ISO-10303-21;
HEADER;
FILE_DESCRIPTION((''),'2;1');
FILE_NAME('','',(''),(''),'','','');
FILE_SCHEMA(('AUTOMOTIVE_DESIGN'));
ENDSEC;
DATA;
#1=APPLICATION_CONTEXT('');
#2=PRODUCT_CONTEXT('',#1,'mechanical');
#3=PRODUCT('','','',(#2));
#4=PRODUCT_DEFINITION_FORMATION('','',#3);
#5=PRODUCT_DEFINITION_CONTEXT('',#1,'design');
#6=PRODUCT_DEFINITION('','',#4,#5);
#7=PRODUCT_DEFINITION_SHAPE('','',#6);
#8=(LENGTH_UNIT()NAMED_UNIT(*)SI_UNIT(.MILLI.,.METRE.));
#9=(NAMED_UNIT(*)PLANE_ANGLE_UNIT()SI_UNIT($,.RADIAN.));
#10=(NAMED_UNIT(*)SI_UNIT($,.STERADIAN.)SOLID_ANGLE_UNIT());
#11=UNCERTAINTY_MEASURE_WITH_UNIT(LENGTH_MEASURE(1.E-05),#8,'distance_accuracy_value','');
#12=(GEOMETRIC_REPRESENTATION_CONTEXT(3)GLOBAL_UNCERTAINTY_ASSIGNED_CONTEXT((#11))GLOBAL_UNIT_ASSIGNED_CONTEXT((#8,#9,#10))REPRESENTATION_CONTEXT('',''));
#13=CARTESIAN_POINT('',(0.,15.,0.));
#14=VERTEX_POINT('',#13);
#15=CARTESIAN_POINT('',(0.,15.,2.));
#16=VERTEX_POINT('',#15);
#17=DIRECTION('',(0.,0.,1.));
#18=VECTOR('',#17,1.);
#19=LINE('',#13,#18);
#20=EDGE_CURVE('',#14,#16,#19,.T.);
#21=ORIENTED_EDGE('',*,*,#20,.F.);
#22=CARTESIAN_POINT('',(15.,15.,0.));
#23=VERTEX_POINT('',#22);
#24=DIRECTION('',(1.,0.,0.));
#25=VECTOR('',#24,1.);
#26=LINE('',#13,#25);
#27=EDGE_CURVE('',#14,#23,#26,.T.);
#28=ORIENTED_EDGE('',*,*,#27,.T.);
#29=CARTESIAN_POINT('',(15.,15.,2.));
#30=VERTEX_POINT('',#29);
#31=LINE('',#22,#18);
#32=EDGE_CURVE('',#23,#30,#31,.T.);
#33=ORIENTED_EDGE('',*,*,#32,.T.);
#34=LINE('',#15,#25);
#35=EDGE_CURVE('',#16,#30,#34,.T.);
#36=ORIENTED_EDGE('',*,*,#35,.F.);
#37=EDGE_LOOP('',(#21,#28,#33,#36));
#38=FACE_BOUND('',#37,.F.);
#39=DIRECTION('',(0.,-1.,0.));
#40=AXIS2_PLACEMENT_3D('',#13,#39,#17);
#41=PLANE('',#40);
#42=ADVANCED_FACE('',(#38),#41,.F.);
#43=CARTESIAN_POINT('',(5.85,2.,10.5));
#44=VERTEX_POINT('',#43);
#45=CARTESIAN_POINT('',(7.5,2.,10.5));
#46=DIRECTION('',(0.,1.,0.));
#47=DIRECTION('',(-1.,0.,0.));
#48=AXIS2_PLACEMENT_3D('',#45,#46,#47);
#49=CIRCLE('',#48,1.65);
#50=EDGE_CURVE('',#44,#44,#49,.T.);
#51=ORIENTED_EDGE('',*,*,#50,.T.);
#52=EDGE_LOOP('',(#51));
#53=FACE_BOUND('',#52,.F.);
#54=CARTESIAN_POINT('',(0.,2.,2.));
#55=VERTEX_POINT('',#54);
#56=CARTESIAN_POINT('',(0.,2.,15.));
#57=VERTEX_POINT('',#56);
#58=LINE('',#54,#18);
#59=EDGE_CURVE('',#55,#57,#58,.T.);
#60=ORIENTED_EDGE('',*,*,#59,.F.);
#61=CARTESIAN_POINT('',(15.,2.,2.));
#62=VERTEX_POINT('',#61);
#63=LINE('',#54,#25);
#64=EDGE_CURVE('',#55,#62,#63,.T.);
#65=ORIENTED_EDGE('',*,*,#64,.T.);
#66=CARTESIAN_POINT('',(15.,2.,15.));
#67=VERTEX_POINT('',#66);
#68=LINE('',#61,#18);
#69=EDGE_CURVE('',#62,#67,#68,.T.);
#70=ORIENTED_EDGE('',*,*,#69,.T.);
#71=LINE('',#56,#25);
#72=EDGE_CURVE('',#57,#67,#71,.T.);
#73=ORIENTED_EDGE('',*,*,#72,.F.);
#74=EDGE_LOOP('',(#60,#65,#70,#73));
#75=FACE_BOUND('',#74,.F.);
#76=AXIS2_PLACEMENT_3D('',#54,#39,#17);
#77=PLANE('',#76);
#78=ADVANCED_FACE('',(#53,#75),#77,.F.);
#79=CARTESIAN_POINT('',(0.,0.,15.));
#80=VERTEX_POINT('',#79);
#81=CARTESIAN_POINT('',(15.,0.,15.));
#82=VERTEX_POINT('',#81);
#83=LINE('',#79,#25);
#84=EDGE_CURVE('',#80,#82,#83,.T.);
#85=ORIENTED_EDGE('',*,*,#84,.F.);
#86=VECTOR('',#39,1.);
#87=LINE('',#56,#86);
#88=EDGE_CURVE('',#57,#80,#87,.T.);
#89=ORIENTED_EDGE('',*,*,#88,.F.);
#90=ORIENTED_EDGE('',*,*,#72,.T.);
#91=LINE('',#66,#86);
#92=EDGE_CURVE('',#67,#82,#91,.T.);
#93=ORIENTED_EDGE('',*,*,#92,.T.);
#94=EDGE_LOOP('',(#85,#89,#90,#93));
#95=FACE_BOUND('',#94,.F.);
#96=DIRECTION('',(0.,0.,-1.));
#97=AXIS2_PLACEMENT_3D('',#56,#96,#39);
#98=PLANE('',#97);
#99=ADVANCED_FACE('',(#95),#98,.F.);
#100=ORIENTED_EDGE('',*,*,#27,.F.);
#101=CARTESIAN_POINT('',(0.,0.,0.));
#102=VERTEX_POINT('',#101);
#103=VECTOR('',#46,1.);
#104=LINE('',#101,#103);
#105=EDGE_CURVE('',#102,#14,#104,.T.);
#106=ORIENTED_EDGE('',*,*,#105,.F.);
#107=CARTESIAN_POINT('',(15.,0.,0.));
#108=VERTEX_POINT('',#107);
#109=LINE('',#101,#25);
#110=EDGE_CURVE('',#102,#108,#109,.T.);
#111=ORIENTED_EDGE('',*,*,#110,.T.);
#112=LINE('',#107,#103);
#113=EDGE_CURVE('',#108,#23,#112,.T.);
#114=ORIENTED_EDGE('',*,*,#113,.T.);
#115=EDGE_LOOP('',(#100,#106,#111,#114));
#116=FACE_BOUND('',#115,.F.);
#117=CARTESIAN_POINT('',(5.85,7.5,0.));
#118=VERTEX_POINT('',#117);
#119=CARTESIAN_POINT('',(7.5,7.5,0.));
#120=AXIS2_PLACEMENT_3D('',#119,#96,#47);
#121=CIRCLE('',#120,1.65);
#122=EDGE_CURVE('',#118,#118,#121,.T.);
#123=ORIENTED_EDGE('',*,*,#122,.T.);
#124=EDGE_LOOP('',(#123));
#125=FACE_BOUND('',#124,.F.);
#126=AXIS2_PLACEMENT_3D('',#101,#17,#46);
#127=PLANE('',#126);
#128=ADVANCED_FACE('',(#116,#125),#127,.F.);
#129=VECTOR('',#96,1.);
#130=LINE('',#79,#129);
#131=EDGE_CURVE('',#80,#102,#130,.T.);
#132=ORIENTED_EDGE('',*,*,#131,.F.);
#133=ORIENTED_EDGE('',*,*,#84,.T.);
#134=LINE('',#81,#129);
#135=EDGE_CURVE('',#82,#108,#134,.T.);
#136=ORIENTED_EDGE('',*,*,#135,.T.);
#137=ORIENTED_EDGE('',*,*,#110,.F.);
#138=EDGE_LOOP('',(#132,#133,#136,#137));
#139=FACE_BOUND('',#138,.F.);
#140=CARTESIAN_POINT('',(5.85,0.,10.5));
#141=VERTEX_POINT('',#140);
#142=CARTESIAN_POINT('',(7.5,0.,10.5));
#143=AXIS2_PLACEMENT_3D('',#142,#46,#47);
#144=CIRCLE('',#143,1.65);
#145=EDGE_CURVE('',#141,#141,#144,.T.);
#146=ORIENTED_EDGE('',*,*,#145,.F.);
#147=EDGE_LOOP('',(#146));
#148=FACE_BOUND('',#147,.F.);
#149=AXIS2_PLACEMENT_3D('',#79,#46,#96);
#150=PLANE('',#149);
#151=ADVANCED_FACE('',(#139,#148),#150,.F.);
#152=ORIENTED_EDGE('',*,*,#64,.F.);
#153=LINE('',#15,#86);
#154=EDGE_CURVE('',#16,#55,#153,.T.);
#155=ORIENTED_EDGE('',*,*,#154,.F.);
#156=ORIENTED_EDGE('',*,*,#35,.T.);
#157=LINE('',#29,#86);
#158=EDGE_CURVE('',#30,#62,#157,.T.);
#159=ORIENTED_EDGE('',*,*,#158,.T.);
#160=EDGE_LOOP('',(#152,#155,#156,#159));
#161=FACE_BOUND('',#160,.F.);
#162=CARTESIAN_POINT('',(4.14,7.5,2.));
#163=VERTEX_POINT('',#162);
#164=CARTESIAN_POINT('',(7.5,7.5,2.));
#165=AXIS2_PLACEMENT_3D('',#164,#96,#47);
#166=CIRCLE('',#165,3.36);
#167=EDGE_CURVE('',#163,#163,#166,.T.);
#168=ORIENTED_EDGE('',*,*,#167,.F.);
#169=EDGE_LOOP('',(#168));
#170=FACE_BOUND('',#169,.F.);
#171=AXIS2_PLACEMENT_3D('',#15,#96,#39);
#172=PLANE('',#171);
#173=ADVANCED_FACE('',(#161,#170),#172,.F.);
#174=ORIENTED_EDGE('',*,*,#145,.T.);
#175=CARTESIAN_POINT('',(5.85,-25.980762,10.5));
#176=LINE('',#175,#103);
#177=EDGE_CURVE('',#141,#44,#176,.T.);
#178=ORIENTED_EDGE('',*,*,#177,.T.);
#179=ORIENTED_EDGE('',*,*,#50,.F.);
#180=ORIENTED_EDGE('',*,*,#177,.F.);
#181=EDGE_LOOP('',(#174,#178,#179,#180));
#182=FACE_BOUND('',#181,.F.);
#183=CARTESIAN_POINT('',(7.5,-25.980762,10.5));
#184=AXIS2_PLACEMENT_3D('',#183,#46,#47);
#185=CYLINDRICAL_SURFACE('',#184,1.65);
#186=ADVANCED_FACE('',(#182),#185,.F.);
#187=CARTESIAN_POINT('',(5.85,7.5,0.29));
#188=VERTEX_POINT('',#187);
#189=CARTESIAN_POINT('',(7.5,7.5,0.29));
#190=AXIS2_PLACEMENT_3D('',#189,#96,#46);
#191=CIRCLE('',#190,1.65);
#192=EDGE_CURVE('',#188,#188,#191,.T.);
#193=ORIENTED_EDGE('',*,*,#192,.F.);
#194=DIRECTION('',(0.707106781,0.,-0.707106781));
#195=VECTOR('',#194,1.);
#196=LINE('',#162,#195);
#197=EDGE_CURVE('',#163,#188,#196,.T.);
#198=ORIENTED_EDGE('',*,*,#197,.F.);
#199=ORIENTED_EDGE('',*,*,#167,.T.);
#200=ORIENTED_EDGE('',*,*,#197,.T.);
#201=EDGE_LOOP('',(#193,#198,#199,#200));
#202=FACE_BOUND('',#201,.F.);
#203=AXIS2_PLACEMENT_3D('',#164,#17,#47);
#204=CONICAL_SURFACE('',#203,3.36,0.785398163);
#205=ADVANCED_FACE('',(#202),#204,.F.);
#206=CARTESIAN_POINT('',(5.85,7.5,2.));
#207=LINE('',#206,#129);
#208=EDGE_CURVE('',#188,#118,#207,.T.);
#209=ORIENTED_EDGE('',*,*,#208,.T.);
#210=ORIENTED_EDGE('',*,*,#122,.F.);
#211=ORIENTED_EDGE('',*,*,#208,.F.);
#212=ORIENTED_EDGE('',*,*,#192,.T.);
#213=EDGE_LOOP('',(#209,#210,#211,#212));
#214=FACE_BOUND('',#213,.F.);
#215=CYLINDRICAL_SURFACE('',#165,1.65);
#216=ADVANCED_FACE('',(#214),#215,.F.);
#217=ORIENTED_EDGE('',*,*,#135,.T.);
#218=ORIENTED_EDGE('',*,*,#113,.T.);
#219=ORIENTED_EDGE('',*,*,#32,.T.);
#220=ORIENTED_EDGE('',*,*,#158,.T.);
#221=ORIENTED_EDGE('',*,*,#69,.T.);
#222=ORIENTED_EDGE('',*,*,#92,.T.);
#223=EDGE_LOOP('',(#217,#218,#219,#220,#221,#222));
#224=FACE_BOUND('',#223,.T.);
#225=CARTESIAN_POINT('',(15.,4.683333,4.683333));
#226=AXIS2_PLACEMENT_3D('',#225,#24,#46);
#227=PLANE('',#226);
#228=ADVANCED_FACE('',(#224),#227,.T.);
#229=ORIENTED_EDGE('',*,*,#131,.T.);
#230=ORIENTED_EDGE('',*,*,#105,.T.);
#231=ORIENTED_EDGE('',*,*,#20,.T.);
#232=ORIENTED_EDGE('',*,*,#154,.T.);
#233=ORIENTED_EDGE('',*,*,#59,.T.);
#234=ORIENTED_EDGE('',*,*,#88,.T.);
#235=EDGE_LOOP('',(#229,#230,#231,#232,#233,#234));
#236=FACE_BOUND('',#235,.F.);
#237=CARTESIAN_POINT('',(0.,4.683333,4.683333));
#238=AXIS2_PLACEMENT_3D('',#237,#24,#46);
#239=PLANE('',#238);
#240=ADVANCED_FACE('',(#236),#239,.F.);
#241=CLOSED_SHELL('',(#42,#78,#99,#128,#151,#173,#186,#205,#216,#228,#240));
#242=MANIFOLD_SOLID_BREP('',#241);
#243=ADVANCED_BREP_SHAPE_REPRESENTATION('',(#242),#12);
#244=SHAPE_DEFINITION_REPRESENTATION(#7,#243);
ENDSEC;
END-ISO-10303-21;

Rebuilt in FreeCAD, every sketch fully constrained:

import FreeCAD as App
import Part
import Sketcher


def add_polygon(sketch, points):
    """Adds a closed chain of lines whose ends are joined by coincident constraints."""
    first, n = sketch.GeometryCount, len(points)
    for a, b in zip(points, points[1:] + points[:1]):
        sketch.addGeometry(Part.LineSegment(App.Vector(*a, 0), App.Vector(*b, 0)), False)
    for i in range(n):
        sketch.addConstraint(Sketcher.Constraint("Coincident", first + i, 2, first + (i + 1) % n, 1))

doc = App.newDocument("Part")
params = doc.addObject("Spreadsheet::Sheet", "Params")
for row, (alias, value) in enumerate([
    ("sketch1_width", "15 mm"),
    ("sketch1_width2", "13 mm"),
    ("pad1_length", "15 mm"),
    ("sketch2_diameter", "3.3 mm"),
    ("hole_diameter", "3.3 mm"),
    ("sketch3_diameter", "3.3 mm"),
    ("hole2_diameter", "3.3 mm"),
    ("hole2_csink_diameter", "6.72 mm"),
], start=1):
    params.set(f"A{row}", alias)
    params.set(f"B{row}", "=" + value)
    params.setAlias(f"B{row}", alias)

body = doc.addObject("PartDesign::Body", "Body")

# Sketch on YZ plane
sketch1 = doc.addObject("Sketcher::SketchObject", "Sketch")
body.addObject(sketch1)
sketch1.AttachmentSupport = (doc.YZ_Plane, [""])
sketch1.MapMode = "FlatFace"
add_polygon(sketch1, [(0, 15), (0, 0), (15, 0), (15, 2), (2, 2), (2, 15)])  # lines 0-5
sketch1.addConstraint(Sketcher.Constraint("Vertical", 0))
sketch1.addConstraint(Sketcher.Constraint("Horizontal", 1))
sketch1.addConstraint(Sketcher.Constraint("Vertical", 2))
sketch1.addConstraint(Sketcher.Constraint("Horizontal", 3))
sketch1.addConstraint(Sketcher.Constraint("Vertical", 4))
sketch1.addConstraint(Sketcher.Constraint("Horizontal", 5))
sketch1.addConstraint(Sketcher.Constraint("Coincident", 0, 2, -1, 1))
sketch1.addConstraint(Sketcher.Constraint("Equal", 1, 0))
sketch1.addConstraint(Sketcher.Constraint("Equal", 5, 2))
sketch1.addConstraint(Sketcher.Constraint("DistanceX", 1, 1, 1, 2, 15.0))
sketch1.addConstraint(Sketcher.Constraint("DistanceX", 3, 2, 3, 1, 13.0))
sketch1.setExpression("Constraints[15]", "Params.sketch1_width")
sketch1.setExpression("Constraints[16]", "Params.sketch1_width2")
pad1 = doc.addObject("PartDesign::Pad", "Pad")
body.addObject(pad1)
pad1.Profile = sketch1
pad1.setExpression("Length", "Params.pad1_length")

# Sketch on XZ plane
sketch2 = doc.addObject("Sketcher::SketchObject", "Sketch001")
body.addObject(sketch2)
sketch2.AttachmentSupport = (doc.XZ_Plane, [""])
sketch2.MapMode = "FlatFace"
sketch2.addGeometry(Part.Circle(App.Vector(7.5, 10.5, 0), App.Vector(0, 0, 1), 1.6), False)
sketch2.addConstraint(Sketcher.Constraint("Diameter", 0, 3.3))
sketch2.addConstraint(Sketcher.Constraint("DistanceX", -1, 1, 0, 3, 7.5))
sketch2.addConstraint(Sketcher.Constraint("DistanceY", -1, 1, 0, 3, 10.5))
sketch2.setExpression("Constraints[0]", "Params.sketch2_diameter")
doc.recompute()
hole = doc.addObject("PartDesign::Hole", "Hole")
body.addObject(hole)
hole.Profile = sketch2
hole.ThreadType = "None"
hole.setExpression("Diameter", "Params.hole_diameter")
hole.DepthType = "ThroughAll"

# Sketch on XY plane
sketch3 = doc.addObject("Sketcher::SketchObject", "Sketch002")
body.addObject(sketch3)
sketch3.AttachmentSupport = (doc.XY_Plane, [""])
sketch3.MapMode = "FlatFace"
sketch3.AttachmentOffset = App.Placement(App.Vector(0, 0, 2), App.Rotation())
sketch3.addGeometry(Part.Circle(App.Vector(7.5, 7.5, 0), App.Vector(0, 0, 1), 1.6), False)
sketch3.addConstraint(Sketcher.Constraint("Diameter", 0, 3.3))
sketch3.addConstraint(Sketcher.Constraint("DistanceX", -1, 1, 0, 3, 7.5))
sketch3.addConstraint(Sketcher.Constraint("DistanceY", -1, 1, 0, 3, 7.5))
sketch3.setExpression("Constraints[0]", "Params.sketch3_diameter")
doc.recompute()
hole2 = doc.addObject("PartDesign::Hole", "Hole001")
body.addObject(hole2)
hole2.Profile = sketch3
hole2.ThreadType = "None"
hole2.setExpression("Diameter", "Params.hole2_diameter")
hole2.DepthType = "ThroughAll"
hole2.HoleCutType = "Countersink"
hole2.setExpression("HoleCutDiameter", "Params.hole2_csink_diameter")
hole2.HoleCutCountersinkAngle = 90

doc.recompute()
